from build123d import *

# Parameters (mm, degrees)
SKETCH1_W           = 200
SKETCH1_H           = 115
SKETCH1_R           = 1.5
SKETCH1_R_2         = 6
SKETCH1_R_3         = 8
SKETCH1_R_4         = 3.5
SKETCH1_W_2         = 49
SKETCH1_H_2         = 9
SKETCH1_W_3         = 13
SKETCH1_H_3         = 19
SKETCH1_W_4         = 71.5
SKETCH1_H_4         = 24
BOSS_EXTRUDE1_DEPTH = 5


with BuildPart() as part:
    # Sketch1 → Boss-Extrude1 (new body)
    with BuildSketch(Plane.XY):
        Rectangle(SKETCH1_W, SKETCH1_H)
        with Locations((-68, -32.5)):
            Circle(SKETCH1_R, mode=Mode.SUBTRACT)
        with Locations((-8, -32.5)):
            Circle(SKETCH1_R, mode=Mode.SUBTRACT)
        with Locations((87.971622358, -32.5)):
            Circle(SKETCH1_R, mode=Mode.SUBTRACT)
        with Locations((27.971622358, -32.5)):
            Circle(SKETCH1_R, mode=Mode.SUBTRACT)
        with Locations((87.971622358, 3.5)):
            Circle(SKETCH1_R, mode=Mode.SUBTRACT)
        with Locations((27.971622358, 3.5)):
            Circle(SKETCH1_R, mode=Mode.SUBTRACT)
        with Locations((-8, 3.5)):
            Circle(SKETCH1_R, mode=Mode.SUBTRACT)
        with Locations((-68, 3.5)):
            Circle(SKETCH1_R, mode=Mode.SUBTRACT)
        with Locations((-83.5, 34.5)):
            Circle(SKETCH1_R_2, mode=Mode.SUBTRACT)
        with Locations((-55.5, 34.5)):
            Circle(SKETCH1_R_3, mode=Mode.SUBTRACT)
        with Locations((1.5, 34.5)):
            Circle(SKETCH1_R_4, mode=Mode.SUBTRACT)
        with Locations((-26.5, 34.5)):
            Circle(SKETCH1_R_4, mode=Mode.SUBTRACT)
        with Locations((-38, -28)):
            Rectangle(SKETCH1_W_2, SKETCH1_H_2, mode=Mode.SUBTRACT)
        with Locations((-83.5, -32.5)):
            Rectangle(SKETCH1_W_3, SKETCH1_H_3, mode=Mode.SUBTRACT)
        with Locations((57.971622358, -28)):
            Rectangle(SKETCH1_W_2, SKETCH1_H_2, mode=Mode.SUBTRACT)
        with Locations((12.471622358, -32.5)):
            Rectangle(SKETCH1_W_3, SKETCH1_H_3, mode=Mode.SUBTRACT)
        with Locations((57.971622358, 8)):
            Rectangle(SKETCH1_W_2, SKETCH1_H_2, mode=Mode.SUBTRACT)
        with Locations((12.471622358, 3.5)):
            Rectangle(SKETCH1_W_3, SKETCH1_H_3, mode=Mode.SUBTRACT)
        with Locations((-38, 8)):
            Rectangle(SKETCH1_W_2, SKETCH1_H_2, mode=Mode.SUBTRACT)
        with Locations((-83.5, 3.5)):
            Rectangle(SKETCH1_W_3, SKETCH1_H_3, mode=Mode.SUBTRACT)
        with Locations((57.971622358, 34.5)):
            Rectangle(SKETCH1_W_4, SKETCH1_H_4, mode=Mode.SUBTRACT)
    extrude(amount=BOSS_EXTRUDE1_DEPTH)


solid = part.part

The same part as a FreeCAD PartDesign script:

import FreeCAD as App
import Part
import Sketcher
Q = App.Units.Quantity


def add_polygon(sketch, points):
    """Adds a closed chain of lines whose ends are joined by coincident constraints."""
    first, n = sketch.GeometryCount, len(points)
    for a, b in zip(points, points[1:] + points[:1]):
        sketch.addGeometry(Part.LineSegment(App.Vector(*a, 0), App.Vector(*b, 0)), False)
    for i in range(n):
        sketch.addConstraint(Sketcher.Constraint("Coincident", first + i, 2, first + (i + 1) % n, 1))

doc = App.newDocument("Part")
body = doc.addObject("PartDesign::Body", "Body")

# Sketch on XY plane
sketch1 = body.newObject("Sketcher::SketchObject", "Sketch")
sketch1.AttachmentSupport = (doc.getObject("XY_Plane"), [""])
sketch1.MapMode = "FlatFace"
add_polygon(sketch1, [(-100, 57.5), (-100, -57.5), (100, -57.5), (100, 57.5)])  # lines 0-3
add_polygon(sketch1, [(-77, -42), (-90, -42), (-90, -23), (-77, -23)])  # lines 4-7
sketch1.addGeometry(Part.Circle(App.Vector(-68, -32.5, 0), App.Vector(0, 0, 1), 1.5), False)  # 8
sketch1.addGeometry(Part.Circle(App.Vector(-8, -32.5, 0), App.Vector(0, 0, 1), 1.5), False)  # 9
add_polygon(sketch1, [(-13.5, -32.5), (-62.5, -32.5), (-62.5, -23.5), (-13.5, -23.5)])  # lines 10-13
add_polygon(sketch1, [(19, -42), (6, -42), (6, -23), (19, -23)])  # lines 14-17
sketch1.addGeometry(Part.Circle(App.Vector(28, -32.5, 0), App.Vector(0, 0, 1), 1.5), False)  # 18
sketch1.addGeometry(Part.Circle(App.Vector(88, -32.5, 0), App.Vector(0, 0, 1), 1.5), False)  # 19
add_polygon(sketch1, [(82.5, -32.5), (33.5, -32.5), (33.5, -23.5), (82.5, -23.5)])  # lines 20-23
add_polygon(sketch1, [(-77, -6), (-90, -6), (-90, 13), (-77, 13)])  # lines 24-27
sketch1.addGeometry(Part.Circle(App.Vector(-68, 3.5, 0), App.Vector(0, 0, 1), 1.5), False)  # 28
add_polygon(sketch1, [(-13.5, 3.5), (-62.5, 3.5), (-62.5, 12.5), (-13.5, 12.5)])  # lines 29-32
sketch1.addGeometry(Part.Circle(App.Vector(-8, 3.5, 0), App.Vector(0, 0, 1), 1.5), False)  # 33
sketch1.addGeometry(Part.Circle(App.Vector(-83.5, 34.5, 0), App.Vector(0, 0, 1), 6), False)  # 34
sketch1.addGeometry(Part.Circle(App.Vector(-55.5, 34.5, 0), App.Vector(0, 0, 1), 8), False)  # 35
sketch1.addGeometry(Part.Circle(App.Vector(-26.5, 34.5, 0), App.Vector(0, 0, 1), 3.5), False)  # 36
sketch1.addGeometry(Part.Circle(App.Vector(1.5, 34.5, 0), App.Vector(0, 0, 1), 3.5), False)  # 37
add_polygon(sketch1, [(19, -6), (6, -6), (6, 13), (19, 13)])  # lines 38-41
sketch1.addGeometry(Part.Circle(App.Vector(28, 3.5, 0), App.Vector(0, 0, 1), 1.5), False)  # 42
add_polygon(sketch1, [(82.5, 3.5), (33.5, 3.5), (33.5, 12.5), (82.5, 12.5)])  # lines 43-46
sketch1.addGeometry(Part.Circle(App.Vector(88, 3.5, 0), App.Vector(0, 0, 1), 1.5), False)  # 47
add_polygon(sketch1, [(93.7, 22.5), (22.2, 22.5), (22.2, 46.5), (93.7, 46.5)])  # lines 48-51
sketch1.addConstraint(Sketcher.Constraint("Vertical", 0))
sketch1.addConstraint(Sketcher.Constraint("Horizontal", 1))
sketch1.addConstraint(Sketcher.Constraint("Vertical", 2))
sketch1.addConstraint(Sketcher.Constraint("Horizontal", 3))
sketch1.addConstraint(Sketcher.Constraint("Horizontal", 4))
sketch1.addConstraint(Sketcher.Constraint("Vertical", 5))
sketch1.addConstraint(Sketcher.Constraint("Horizontal", 6))
sketch1.addConstraint(Sketcher.Constraint("Vertical", 7))
sketch1.addConstraint(Sketcher.Constraint("Horizontal", 10))
sketch1.addConstraint(Sketcher.Constraint("Vertical", 11))
sketch1.addConstraint(Sketcher.Constraint("Horizontal", 12))
sketch1.addConstraint(Sketcher.Constraint("Vertical", 13))
sketch1.addConstraint(Sketcher.Constraint("Horizontal", 14))
sketch1.addConstraint(Sketcher.Constraint("Vertical", 15))
sketch1.addConstraint(Sketcher.Constraint("Horizontal", 16))
sketch1.addConstraint(Sketcher.Constraint("Vertical", 17))
sketch1.addConstraint(Sketcher.Constraint("Horizontal", 20))
sketch1.addConstraint(Sketcher.Constraint("Vertical", 21))
sketch1.addConstraint(Sketcher.Constraint("Horizontal", 22))
sketch1.addConstraint(Sketcher.Constraint("Vertical", 23))
sketch1.addConstraint(Sketcher.Constraint("Horizontal", 24))
sketch1.addConstraint(Sketcher.Constraint("Vertical", 25))
sketch1.addConstraint(Sketcher.Constraint("Horizontal", 26))
sketch1.addConstraint(Sketcher.Constraint("Vertical", 27))
sketch1.addConstraint(Sketcher.Constraint("Horizontal", 29))
sketch1.addConstraint(Sketcher.Constraint("Vertical", 30))
sketch1.addConstraint(Sketcher.Constraint("Horizontal", 31))
sketch1.addConstraint(Sketcher.Constraint("Vertical", 32))
sketch1.addConstraint(Sketcher.Constraint("Horizontal", 38))
sketch1.addConstraint(Sketcher.Constraint("Vertical", 39))
sketch1.addConstraint(Sketcher.Constraint("Horizontal", 40))
sketch1.addConstraint(Sketcher.Constraint("Vertical", 41))
sketch1.addConstraint(Sketcher.Constraint("Horizontal", 43))
sketch1.addConstraint(Sketcher.Constraint("Vertical", 44))
sketch1.addConstraint(Sketcher.Constraint("Horizontal", 45))
sketch1.addConstraint(Sketcher.Constraint("Vertical", 46))
sketch1.addConstraint(Sketcher.Constraint("Horizontal", 48))
sketch1.addConstraint(Sketcher.Constraint("Vertical", 49))
sketch1.addConstraint(Sketcher.Constraint("Horizontal", 50))
sketch1.addConstraint(Sketcher.Constraint("Vertical", 51))
sketch1.addConstraint(Sketcher.Constraint("Equal", 8, 9))
sketch1.addConstraint(Sketcher.Constraint("Equal", 9, 18))
sketch1.addConstraint(Sketcher.Constraint("Equal", 18, 19))
sketch1.addConstraint(Sketcher.Constraint("Equal", 19, 28))
sketch1.addConstraint(Sketcher.Constraint("Equal", 28, 33))
sketch1.addConstraint(Sketcher.Constraint("Equal", 36, 37))
sketch1.addConstraint(Sketcher.Constraint("Equal", 33, 42))
sketch1.addConstraint(Sketcher.Constraint("Equal", 42, 47))
sketch1.addConstraint(Sketcher.Constraint("Symmetric", 0, 2, 2, 2, -1, 1))
sketch1.addConstraint(Sketcher.Constraint("Horizontal", 8, 3, 9, 3))
sketch1.addConstraint(Sketcher.Constraint("Horizontal", 9, 3, 18, 3))
sketch1.addConstraint(Sketcher.Constraint("Horizontal", 18, 3, 19, 3))
sketch1.addConstraint(Sketcher.Constraint("Horizontal", 28, 3, 33, 3))
sketch1.addConstraint(Sketcher.Constraint("Horizontal", 34, 3, 35, 3))
sketch1.addConstraint(Sketcher.Constraint("Horizontal", 35, 3, 36, 3))
sketch1.addConstraint(Sketcher.Constraint("Horizontal", 36, 3, 37, 3))
sketch1.addConstraint(Sketcher.Constraint("Horizontal", 33, 3, 42, 3))
sketch1.addConstraint(Sketcher.Constraint("Horizontal", 42, 3, 47, 3))
sketch1.addConstraint(Sketcher.Constraint("Horizontal", 19, 3, 10, 2))
sketch1.addConstraint(Sketcher.Constraint("Horizontal", 7, 2, 14, 2))
sketch1.addConstraint(Sketcher.Constraint("Horizontal", 6, 2, 15, 2))
sketch1.addConstraint(Sketcher.Constraint("Horizontal", 13, 2, 20, 2))
sketch1.addConstraint(Sketcher.Constraint("Horizontal", 12, 2, 21, 2))
sketch1.addConstraint(Sketcher.Constraint("Horizontal", 47, 3, 29, 2))
sketch1.addConstraint(Sketcher.Constraint("Horizontal", 27, 2, 38, 2))
sketch1.addConstraint(Sketcher.Constraint("Horizontal", 26, 2, 39, 2))
sketch1.addConstraint(Sketcher.Constraint("Horizontal", 32, 2, 43, 2))
sketch1.addConstraint(Sketcher.Constraint("Horizontal", 31, 2, 44, 2))
sketch1.addConstraint(Sketcher.Constraint("Vertical", 8, 3, 28, 3))
sketch1.addConstraint(Sketcher.Constraint("Vertical", 9, 3, 33, 3))
sketch1.addConstraint(Sketcher.Constraint("Vertical", 18, 3, 42, 3))
sketch1.addConstraint(Sketcher.Constraint("Vertical", 19, 3, 47, 3))
sketch1.addConstraint(Sketcher.Constraint("Vertical", 5, 2, 24, 2))
sketch1.addConstraint(Sketcher.Constraint("Vertical", 7, 2, 26, 2))
sketch1.addConstraint(Sketcher.Constraint("Vertical", 11, 2, 29, 2))
sketch1.addConstraint(Sketcher.Constraint("Vertical", 13, 2, 31, 2))
sketch1.addConstraint(Sketcher.Constraint("Vertical", 15, 2, 38, 2))
sketch1.addConstraint(Sketcher.Constraint("Vertical", 17, 2, 40, 2))
sketch1.addConstraint(Sketcher.Constraint("Vertical", 21, 2, 43, 2))
sketch1.addConstraint(Sketcher.Constraint("Vertical", 23, 2, 45, 2))
sketch1.addConstraint(Sketcher.Constraint("Equal", 6, 14))
sketch1.addConstraint(Sketcher.Constraint("Equal", 12, 20))
sketch1.addConstraint(Sketcher.Constraint("Equal", 17, 25))
sketch1.addConstraint(Sketcher.Constraint("Equal", 23, 30))
sketch1.addConstraint(Sketcher.Constraint("Diameter", 8, Q("3 mm")))
sketch1.addConstraint(Sketcher.Constraint("Diameter", 34, Q("12 mm")))
sketch1.addConstraint(Sketcher.Constraint("Diameter", 35, Q("16 mm")))
sketch1.addConstraint(Sketcher.Constraint("Diameter", 36, Q("7 mm")))
sketch1.addConstraint(Sketcher.Constraint("DistanceX", 1, 1, 1, 2, Q("200 mm")))
sketch1.addConstraint(Sketcher.Constraint("DistanceX", 4, 2, 4, 1, Q("13 mm")))
sketch1.addConstraint(Sketcher.Constraint("DistanceX", 10, 2, 10, 1, Q("49 mm")))
sketch1.addConstraint(Sketcher.Constraint("DistanceY", 0, 2, 0, 1, Q("115 mm")))
sketch1.addConstraint(Sketcher.Constraint("DistanceY", 5, 1, 5, 2, Q("19 mm")))
sketch1.addConstraint(Sketcher.Constraint("DistanceY", 11, 1, 11, 2, Q("9 mm")))
sketch1.addConstraint(Sketcher.Constraint("DistanceY", 49, 1, 49, 2, Q("24 mm")))
sketch1.addConstraint(Sketcher.Constraint("DistanceX", 48, 2, 48, 1, Q("71.5 mm")))
sketch1.addConstraint(Sketcher.Constraint("DistanceX", 8, 3, -1, 1, Q("68 mm")))
sketch1.addConstraint(Sketcher.Constraint("DistanceX", 9, 3, -1, 1, Q("8 mm")))
sketch1.addConstraint(Sketcher.Constraint("DistanceX", 4, 2, -1, 1, Q("90 mm")))
sketch1.addConstraint(Sketcher.Constraint("DistanceY", 4, 2, -1, 1, Q("42 mm")))
sketch1.addConstraint(Sketcher.Constraint("DistanceY", 24, 2, -1, 1, Q("6 mm")))
sketch1.addConstraint(Sketcher.Constraint("DistanceX", 18, 3, 19, 3, Q("60 mm")))
sketch1.addConstraint(Sketcher.Constraint("DistanceY", 8, 3, 28, 3, Q("36 mm")))
sketch1.addConstraint(Sketcher.Constraint("DistanceY", 28, 3, 34, 3, Q("31 mm")))
sketch1.addConstraint(Sketcher.Constraint("DistanceX", 34, 3, 35, 3, Q("28 mm")))
sketch1.addConstraint(Sketcher.Constraint("DistanceX", 35, 3, 36, 3, Q("29 mm")))
sketch1.addConstraint(Sketcher.Constraint("DistanceX", 36, 3, 37, 3, Q("28 mm")))
sketch1.addConstraint(Sketcher.Constraint("DistanceY", 0, 2, 8, 3, Q("25 mm")))
sketch1.addConstraint(Sketcher.Constraint("DistanceX", 14, 2, 18, 3, Q("22 mm")))
sketch1.addConstraint(Sketcher.Constraint("DistanceX", 30, 2, 35, 3, Q("7 mm")))
sketch1.addConstraint(Sketcher.Constraint("DistanceY", 44, 2, 48, 2, Q("10 mm")))
sketch1.addConstraint(Sketcher.Constraint("DistanceX", 34, 3, -1, 1, Q("83.5 mm")))
sketch1.addConstraint(Sketcher.Constraint("DistanceX", 18, 3, 20, 2, Q("5.5 mm")))
sketch1.addConstraint(Sketcher.Constraint("DistanceX", 40, 2, 48, 2, Q("3.25 mm")))
sketch1.addConstraint(Sketcher.Constraint("DistanceX", -1, 1, 18, 3, Q("27.971622 mm")))
pad1 = body.newObject("PartDesign::Pad", "Pad")
pad1.Profile = sketch1
pad1.Length = 5

doc.recompute()
